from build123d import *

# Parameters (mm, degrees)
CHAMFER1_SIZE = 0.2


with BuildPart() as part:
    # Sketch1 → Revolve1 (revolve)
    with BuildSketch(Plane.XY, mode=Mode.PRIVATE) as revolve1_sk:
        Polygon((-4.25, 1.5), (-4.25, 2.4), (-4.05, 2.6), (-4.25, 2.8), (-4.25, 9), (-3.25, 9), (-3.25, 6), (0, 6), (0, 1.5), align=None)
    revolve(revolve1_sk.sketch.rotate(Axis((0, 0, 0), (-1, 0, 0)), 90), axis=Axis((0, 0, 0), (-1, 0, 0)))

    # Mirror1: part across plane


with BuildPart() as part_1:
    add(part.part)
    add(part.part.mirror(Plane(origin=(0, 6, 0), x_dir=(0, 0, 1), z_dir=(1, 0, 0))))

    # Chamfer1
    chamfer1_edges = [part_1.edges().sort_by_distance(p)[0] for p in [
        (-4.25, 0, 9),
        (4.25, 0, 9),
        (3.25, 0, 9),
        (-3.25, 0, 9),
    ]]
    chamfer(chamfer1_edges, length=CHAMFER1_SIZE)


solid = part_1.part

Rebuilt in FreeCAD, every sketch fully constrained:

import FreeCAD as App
import Part
import Sketcher

V = App.Vector


def edges_at(feature, points):
    """Names of the edges that pass closest to the given points."""
    edges = feature.Shape.Edges
    near = lambda p: min(range(len(edges)), key=lambda i: edges[i].distToShape(Part.Vertex(*p))[0])
    return sorted({f"Edge{near(p) + 1}" for p in points})


def add_polygon(sketch, points):
    """Adds a closed chain of lines whose ends are joined by coincident constraints."""
    first, n = sketch.GeometryCount, len(points)
    for a, b in zip(points, points[1:] + points[:1]):
        sketch.addGeometry(Part.LineSegment(App.Vector(*a, 0), App.Vector(*b, 0)), False)
    for i in range(n):
        sketch.addConstraint(Sketcher.Constraint("Coincident", first + i, 2, first + (i + 1) % n, 1))

doc = App.newDocument("Part")
body = doc.addObject("PartDesign::Body", "Body")

# Sketch on XY plane
sketch1 = body.newObject("Sketcher::SketchObject", "Sketch")
sketch1.AttachmentSupport = (doc.getObject("XY_Plane"), [""])
sketch1.MapMode = "FlatFace"
add_polygon(sketch1, [(-4.25, 2.4), (-4.25, 1.5), (0, 1.5), (0, 6), (-3.25, 6), (-3.25, 9), (-4.25, 9), (-4.25, 2.8), (-4.05, 2.6)])  # lines 0-8
sketch1.addConstraint([
    Sketcher.Constraint("Vertical", 0),
    Sketcher.Constraint("Horizontal", 1),
    Sketcher.Constraint("Vertical", 2),
    Sketcher.Constraint("Horizontal", 3),
    Sketcher.Constraint("Vertical", 4),
    Sketcher.Constraint("Horizontal", 5),
    Sketcher.Constraint("Vertical", 6),
    Sketcher.Constraint("PointOnObject", 1, 2, -2),
    Sketcher.Constraint("Perpendicular", 7, 8),
    Sketcher.Constraint("Vertical", 0, 2, 5, 2),
    Sketcher.Constraint("Equal", 7, 8),
    Sketcher.Constraint("DistanceX", 5, 2, 5, 1, 1.0),
    Sketcher.Constraint("DistanceY", 4, 1, 4, 2, 3.0),
    Sketcher.Constraint("DistanceY", 0, 2, 0, 1, 0.9),
    Sketcher.Constraint("DistanceY", 2, 1, 2, 2, 4.5),
    Sketcher.Constraint("DistanceY", 6, 2, 6, 1, 6.2),
    Sketcher.Constraint("DistanceY", -1, 1, 2, 2, 6.0),
    Sketcher.Constraint("DistanceX", 1, 1, 1, 2, 4.25),
])
revolution = body.newObject("PartDesign::Revolution", "Revolution")
revolution.Profile = sketch1
revolution.ReferenceAxis = (sketch1, ["H_Axis"])
revolution.Angle = 360
body2 = doc.addObject("PartDesign::Body", "Body001")
doc.recompute()

body2.BaseFeature = body
doc.recompute()

mirroring = doc.addObject("Part::Mirroring", "Mirroring")
mirroring.Source = body
mirroring.Base = V(0, 6, 0)
mirroring.Normal = V(1, 0, 0)
body3 = doc.addObject("PartDesign::Body", "Body002")
body3.BaseFeature = mirroring
boolean = body2.newObject("PartDesign::Boolean", "Boolean")
boolean.Type = "Fuse"
boolean.addObjects([body3])
doc.recompute()

chamfer = body2.newObject("PartDesign::Chamfer", "Chamfer")
chamfer.Base = (boolean, edges_at(boolean, [
    (-4.25, 0, 9),
    (4.25, 0, 9),
    (3.25, 0, 9),
    (-3.25, 0, 9),
]))
chamfer.Size = 0.2
mirroring.Visibility = False

doc.recompute()
